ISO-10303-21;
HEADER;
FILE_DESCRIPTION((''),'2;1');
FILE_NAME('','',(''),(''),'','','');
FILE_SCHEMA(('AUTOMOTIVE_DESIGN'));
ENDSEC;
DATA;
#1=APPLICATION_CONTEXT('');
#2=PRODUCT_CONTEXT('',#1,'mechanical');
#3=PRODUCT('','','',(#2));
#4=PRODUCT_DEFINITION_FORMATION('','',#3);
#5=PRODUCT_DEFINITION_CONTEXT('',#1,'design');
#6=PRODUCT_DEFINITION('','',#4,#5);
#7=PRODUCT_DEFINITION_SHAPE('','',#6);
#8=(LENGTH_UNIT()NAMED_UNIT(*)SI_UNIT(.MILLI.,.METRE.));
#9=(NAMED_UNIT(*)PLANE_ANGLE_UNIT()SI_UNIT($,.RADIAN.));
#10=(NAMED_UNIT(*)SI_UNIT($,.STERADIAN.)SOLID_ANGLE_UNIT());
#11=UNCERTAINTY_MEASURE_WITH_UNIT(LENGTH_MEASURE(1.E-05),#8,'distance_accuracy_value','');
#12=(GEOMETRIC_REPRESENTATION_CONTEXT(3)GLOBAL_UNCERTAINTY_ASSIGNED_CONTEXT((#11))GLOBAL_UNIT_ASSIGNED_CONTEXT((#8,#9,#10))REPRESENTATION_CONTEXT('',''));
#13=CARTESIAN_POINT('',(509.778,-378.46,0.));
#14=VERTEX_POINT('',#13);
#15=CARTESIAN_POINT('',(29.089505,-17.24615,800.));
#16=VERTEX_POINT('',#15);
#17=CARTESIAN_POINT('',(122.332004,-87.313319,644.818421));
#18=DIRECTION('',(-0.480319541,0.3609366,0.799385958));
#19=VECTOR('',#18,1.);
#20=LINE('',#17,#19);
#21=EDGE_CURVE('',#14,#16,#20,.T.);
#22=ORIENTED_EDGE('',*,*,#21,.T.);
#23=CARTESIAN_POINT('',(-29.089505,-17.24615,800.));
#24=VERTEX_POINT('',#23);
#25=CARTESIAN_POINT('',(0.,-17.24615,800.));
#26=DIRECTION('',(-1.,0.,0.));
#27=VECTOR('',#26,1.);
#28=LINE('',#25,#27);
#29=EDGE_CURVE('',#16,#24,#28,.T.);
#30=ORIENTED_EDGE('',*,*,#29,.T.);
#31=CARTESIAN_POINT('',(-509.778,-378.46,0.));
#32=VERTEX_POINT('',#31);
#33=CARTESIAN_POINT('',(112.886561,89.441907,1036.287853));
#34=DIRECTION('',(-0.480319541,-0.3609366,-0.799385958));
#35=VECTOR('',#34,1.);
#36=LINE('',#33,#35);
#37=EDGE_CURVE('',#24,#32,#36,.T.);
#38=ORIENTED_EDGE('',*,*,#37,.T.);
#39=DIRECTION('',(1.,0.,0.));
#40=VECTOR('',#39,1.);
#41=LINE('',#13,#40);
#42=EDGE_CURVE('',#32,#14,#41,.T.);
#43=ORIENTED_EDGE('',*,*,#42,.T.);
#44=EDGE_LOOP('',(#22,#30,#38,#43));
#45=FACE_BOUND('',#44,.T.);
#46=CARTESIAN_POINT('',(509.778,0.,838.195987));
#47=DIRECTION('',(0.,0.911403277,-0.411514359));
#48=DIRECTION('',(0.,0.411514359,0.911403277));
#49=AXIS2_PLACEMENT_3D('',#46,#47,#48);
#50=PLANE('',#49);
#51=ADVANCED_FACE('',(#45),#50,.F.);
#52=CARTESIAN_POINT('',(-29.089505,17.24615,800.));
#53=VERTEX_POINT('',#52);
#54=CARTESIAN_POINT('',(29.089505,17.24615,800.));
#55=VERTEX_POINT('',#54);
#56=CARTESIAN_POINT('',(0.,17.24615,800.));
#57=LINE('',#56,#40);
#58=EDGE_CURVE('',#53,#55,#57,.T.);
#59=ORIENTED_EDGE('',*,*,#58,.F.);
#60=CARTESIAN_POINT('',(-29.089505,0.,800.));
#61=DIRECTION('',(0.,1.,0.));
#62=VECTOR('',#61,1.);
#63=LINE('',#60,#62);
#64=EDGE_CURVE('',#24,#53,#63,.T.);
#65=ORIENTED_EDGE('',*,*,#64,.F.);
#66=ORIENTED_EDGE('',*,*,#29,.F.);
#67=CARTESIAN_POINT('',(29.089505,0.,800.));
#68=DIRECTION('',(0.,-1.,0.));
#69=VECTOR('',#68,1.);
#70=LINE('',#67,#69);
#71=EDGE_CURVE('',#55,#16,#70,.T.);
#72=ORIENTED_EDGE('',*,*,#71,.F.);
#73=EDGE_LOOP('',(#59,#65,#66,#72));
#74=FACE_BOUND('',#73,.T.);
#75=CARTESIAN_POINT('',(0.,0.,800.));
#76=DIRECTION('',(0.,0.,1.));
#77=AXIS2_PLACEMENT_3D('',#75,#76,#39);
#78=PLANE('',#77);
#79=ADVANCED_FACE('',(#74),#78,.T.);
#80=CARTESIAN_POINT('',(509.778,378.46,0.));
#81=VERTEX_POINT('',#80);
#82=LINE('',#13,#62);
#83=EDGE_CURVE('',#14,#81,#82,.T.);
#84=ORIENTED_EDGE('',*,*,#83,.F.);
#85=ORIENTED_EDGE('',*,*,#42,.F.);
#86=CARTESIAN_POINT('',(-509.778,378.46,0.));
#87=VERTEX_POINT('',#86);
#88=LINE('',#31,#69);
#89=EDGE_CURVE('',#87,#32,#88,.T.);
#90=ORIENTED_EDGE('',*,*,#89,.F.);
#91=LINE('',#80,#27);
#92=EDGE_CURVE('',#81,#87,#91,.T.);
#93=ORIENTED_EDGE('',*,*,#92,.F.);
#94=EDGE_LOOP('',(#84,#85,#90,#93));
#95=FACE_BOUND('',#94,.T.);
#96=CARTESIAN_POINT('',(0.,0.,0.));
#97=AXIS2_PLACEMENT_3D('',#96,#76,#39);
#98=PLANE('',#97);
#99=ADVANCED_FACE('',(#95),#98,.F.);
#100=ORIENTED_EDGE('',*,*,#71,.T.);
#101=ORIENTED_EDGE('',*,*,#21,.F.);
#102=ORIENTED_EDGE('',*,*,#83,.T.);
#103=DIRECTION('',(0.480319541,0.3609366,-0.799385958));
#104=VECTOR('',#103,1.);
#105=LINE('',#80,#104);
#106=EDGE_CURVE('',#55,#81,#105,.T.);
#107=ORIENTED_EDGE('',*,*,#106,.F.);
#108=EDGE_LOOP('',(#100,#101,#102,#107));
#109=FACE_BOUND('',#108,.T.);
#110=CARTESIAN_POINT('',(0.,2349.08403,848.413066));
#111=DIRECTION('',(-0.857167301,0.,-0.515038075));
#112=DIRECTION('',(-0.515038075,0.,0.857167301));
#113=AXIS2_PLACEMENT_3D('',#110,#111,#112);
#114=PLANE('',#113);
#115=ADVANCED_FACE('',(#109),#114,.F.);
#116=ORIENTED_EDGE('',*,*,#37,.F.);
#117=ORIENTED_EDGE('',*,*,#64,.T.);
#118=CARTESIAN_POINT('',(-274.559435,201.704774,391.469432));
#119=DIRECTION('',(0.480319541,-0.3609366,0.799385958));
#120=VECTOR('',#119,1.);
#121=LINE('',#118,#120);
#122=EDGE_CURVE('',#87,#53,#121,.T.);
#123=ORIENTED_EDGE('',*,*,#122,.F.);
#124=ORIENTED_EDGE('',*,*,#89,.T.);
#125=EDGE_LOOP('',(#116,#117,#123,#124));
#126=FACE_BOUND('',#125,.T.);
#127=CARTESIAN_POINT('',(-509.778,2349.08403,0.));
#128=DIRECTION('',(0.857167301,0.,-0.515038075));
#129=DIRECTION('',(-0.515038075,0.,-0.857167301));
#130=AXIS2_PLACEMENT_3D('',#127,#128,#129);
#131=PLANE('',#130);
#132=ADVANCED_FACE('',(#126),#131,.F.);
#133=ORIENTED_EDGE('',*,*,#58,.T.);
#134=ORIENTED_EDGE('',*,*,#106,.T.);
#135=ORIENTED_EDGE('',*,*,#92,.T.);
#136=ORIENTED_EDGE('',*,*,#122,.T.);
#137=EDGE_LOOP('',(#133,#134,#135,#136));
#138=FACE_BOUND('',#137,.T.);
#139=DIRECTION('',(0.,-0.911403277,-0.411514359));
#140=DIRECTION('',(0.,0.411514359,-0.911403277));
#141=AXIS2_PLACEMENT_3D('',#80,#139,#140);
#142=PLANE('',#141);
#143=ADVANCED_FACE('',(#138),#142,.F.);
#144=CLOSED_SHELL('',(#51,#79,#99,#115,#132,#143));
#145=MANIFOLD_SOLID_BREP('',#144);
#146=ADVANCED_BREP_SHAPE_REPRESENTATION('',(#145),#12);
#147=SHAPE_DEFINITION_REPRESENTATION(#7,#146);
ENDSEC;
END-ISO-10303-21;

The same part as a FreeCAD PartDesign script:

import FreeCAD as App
import Part
import Sketcher
from FreeCAD import Vector
Q = App.Units.Quantity


def add_polygon(sketch, points):
    """Adds a closed chain of lines whose ends are joined by coincident constraints."""
    first, n = sketch.GeometryCount, len(points)
    for a, b in zip(points, points[1:] + points[:1]):
        sketch.addGeometry(Part.LineSegment(App.Vector(*a, 0), App.Vector(*b, 0)), False)
    for i in range(n):
        sketch.addConstraint(Sketcher.Constraint("Coincident", first + i, 2, first + (i + 1) % n, 1))

doc = App.newDocument("Part")
body = doc.addObject("PartDesign::Body", "Body")

sketch1 = doc.addObject("Sketcher::SketchObject", "Sketch")
body.addObject(sketch1)
sketch1.AttachmentSupport = (doc.XY_Plane, [""])
sketch1.MapMode = "FlatFace"
add_polygon(sketch1, [(-510, 378), (-510, -378), (510, -378), (510, 378)])
sketch1.addConstraint([
    Sketcher.Constraint("Vertical", 0),
    Sketcher.Constraint("Horizontal", 1),
    Sketcher.Constraint("Vertical", 2),
    Sketcher.Constraint("Horizontal", 3),
    Sketcher.Constraint("Symmetric", 0, 2, 2, 2, -1, 1),
    Sketcher.Constraint("DistanceY", 0, 2, 0, 1, Q("29.8 in")),
    Sketcher.Constraint("DistanceX", 1, 1, 1, 2, Q("40.14 in")),
])
pad1 = doc.addObject("PartDesign::Pad", "Pad")
body.addObject(pad1)
pad1.Profile = sketch1
pad1.Length = 800

sketch2 = doc.addObject("Sketcher::SketchObject", "Sketch001")
body.addObject(sketch2)
sketch2.AttachmentSupport = (doc.YZ_Plane, [""])
sketch2.MapMode = "FlatFace"
sketch2.AttachmentOffset = App.Placement(Vector(0, 0, 20.07 * 25.4), App.Rotation())
add_polygon(sketch2, [(0, 838), (1289, -2017), (1289, 2409), (-1289, 2409), (-1289, -2017)])
sketch2.addConstraint([
    Sketcher.Constraint("Vertical", 1),
    Sketcher.Constraint("Horizontal", 2),
    Sketcher.Constraint("Vertical", 3),
    Sketcher.Constraint("Symmetric", 0, 2, 3, 2, -2),
    Sketcher.Constraint("PointOnObject", 4, 2, -2),
    Sketcher.Constraint("Angle", 0, Q("-65.7 deg")),
    Sketcher.Constraint("Distance", 0, 3132.3364),
    Sketcher.Constraint("DistanceY", 1, 1, 1, 2, 4425.320213),
    Sketcher.Constraint("DistanceY", 0, 2, -1, 1, 2016.625671),
])
pocket1 = doc.addObject("PartDesign::Pocket", "Pocket")
body.addObject(pocket1)
pocket1.Profile = sketch2
pocket1.Type = "ThroughAll"

sketch3 = doc.addObject("Sketcher::SketchObject", "Sketch002")
body.addObject(sketch3)
sketch3.AttachmentSupport = (doc.XZ_Plane, [""])
sketch3.MapMode = "FlatFace"
add_polygon(sketch3, [(0, 848), (-1850, -2230), (-1850, 2974), (1850, 2974), (1850, -2230)])
sketch3.addConstraint([
    Sketcher.Constraint("Vertical", 1),
    Sketcher.Constraint("Horizontal", 2),
    Sketcher.Constraint("Vertical", 3),
    Sketcher.Constraint("Symmetric", 0, 2, 3, 2, -2),
    Sketcher.Constraint("PointOnObject", 4, 2, -2),
    Sketcher.Constraint("Angle", 0, Q("-121 deg")),
    Sketcher.Constraint("DistanceY", 1, 1, 1, 2, 5203.8124),
    Sketcher.Constraint("DistanceX", 2, 1, 2, 2, 3699.71752),
    Sketcher.Constraint("DistanceY", 0, 2, -1, 1, 2230.268914),
])
pocket2 = doc.addObject("PartDesign::Pocket", "Pocket001")
body.addObject(pocket2)
pocket2.Profile = sketch3
pocket2.Type = "ThroughAll"
pocket2.Midplane = True

doc.recompute()
